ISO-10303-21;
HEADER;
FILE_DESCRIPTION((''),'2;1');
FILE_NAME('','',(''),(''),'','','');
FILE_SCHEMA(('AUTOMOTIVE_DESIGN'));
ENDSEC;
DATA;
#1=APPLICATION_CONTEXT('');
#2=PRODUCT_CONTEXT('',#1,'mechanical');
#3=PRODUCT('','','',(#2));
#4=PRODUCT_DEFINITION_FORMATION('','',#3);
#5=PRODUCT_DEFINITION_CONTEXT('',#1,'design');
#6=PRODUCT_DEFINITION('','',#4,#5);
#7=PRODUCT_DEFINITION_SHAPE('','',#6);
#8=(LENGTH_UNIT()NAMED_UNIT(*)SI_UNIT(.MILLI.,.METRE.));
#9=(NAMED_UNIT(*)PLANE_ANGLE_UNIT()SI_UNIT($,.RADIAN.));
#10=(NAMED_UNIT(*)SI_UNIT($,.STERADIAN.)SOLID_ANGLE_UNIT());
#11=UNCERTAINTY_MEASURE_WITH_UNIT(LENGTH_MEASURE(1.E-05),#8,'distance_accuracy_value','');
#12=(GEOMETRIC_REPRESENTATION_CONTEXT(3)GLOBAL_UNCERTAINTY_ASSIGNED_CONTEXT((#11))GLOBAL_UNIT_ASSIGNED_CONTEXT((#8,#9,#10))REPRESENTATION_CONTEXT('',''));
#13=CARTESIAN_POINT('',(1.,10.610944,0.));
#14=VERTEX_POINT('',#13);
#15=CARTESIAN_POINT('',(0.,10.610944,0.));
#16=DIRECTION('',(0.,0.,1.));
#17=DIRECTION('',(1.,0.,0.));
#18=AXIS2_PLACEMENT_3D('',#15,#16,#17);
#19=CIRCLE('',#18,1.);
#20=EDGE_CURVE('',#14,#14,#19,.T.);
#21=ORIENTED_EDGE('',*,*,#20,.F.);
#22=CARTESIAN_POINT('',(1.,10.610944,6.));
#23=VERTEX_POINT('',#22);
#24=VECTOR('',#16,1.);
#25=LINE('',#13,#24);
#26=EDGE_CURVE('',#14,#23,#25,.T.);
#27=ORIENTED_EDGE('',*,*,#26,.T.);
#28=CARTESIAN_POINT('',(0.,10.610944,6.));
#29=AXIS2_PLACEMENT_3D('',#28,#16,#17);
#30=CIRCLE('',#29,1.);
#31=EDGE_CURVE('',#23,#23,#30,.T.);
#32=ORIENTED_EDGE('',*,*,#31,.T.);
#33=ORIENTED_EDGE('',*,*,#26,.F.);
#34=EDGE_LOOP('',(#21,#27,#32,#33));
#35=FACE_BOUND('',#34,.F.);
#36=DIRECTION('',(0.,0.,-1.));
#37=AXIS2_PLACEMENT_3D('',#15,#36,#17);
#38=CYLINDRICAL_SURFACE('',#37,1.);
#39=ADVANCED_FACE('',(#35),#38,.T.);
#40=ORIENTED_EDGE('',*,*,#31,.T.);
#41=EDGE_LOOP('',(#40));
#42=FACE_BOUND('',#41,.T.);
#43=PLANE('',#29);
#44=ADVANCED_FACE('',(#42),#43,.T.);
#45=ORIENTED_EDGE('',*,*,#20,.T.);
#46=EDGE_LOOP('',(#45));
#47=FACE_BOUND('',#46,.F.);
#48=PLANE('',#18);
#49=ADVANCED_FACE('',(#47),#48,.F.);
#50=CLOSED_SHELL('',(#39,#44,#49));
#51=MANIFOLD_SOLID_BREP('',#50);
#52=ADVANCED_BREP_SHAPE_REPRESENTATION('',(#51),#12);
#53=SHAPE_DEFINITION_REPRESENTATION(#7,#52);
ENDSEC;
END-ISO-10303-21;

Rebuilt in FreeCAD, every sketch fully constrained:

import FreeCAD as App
import Part
import Sketcher

V = App.Vector
Q = App.Units.Quantity

doc = App.newDocument("Part")
params = doc.addObject("Spreadsheet::Sheet", "Params")
for row, (alias, value) in enumerate([
    ("sketch1_diameter", "2 mm"),
    ("pad1_length", "6 mm"),
], start=1):
    params.set(f"A{row}", alias)
    params.set(f"B{row}", "=" + value)
    params.setAlias(f"B{row}", alias)

body = doc.addObject("PartDesign::Body", "Body")

sketch1 = body.newObject("Sketcher::SketchObject", "Sketch")
sketch1.AttachmentSupport = (doc.getObject("XY_Plane"), [""])
sketch1.MapMode = "FlatFace"
sketch1.addGeometry(Part.Circle(V(0, 10.6, 0), V(0, 0, 1), 1), False)
sketch1.addConstraint(Sketcher.Constraint("PointOnObject", 0, 3, -2))
sketch1.addConstraint(Sketcher.Constraint("Diameter", 0, Q("2 mm")))
sketch1.addConstraint(Sketcher.Constraint("DistanceY", -1, 1, 0, 3, Q("10.610944 mm")))
sketch1.setExpression("Constraints[1]", "Params.sketch1_diameter")
pad1 = body.newObject("PartDesign::Pad", "Pad")
pad1.Profile = sketch1
pad1.setExpression("Length", "Params.pad1_length")

doc.recompute()
